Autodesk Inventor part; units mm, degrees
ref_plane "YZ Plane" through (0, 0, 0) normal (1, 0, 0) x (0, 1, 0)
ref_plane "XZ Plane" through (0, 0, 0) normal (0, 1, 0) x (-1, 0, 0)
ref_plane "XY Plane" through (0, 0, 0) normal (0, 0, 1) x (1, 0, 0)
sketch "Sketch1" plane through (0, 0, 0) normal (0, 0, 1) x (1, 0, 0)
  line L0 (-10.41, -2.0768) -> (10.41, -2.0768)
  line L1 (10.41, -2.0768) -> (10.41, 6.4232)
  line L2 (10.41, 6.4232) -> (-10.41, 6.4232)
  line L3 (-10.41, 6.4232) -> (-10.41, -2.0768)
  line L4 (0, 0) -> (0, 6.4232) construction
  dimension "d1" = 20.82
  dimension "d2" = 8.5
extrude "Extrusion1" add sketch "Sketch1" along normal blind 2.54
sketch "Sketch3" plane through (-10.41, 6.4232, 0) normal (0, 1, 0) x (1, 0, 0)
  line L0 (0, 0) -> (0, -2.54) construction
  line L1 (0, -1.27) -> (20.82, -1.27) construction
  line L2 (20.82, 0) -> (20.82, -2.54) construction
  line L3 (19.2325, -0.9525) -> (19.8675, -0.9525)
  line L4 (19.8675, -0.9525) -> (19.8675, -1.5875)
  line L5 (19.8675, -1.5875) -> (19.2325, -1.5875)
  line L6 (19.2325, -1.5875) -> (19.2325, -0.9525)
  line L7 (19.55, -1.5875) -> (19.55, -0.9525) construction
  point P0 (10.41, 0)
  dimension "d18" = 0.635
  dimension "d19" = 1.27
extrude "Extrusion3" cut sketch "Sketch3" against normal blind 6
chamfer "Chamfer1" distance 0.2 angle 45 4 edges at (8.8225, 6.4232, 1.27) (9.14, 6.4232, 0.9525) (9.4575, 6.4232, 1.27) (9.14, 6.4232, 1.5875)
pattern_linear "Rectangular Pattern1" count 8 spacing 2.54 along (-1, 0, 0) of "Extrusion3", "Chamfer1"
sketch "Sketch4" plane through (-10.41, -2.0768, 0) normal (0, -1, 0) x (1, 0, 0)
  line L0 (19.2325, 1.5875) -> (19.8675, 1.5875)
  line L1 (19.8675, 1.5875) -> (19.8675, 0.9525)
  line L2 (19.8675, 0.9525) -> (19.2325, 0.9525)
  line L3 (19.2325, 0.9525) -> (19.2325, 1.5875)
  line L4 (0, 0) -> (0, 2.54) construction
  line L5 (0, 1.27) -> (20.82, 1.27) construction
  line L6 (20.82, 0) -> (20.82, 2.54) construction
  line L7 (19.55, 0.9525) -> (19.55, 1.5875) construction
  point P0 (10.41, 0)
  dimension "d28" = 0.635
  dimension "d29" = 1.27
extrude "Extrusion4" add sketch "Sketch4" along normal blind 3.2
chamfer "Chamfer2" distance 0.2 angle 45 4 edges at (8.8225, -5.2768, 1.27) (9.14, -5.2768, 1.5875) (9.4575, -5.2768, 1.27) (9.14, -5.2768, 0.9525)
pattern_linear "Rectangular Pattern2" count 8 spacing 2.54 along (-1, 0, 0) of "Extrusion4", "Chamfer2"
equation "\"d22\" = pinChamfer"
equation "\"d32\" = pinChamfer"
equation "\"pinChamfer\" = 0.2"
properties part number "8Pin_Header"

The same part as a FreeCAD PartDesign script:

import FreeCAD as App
import Part
import Sketcher
from FreeCAD import Vector
Q = App.Units.Quantity


def edges_at(feature, points):
    """Names of the edges that pass closest to the given points."""
    edges = feature.Shape.Edges
    near = lambda p: min(range(len(edges)), key=lambda i: edges[i].distToShape(Part.Vertex(*p))[0])
    return sorted({f"Edge{near(p) + 1}" for p in points})


def add_polygon(sketch, points):
    """Adds a closed chain of lines whose ends are joined by coincident constraints."""
    first, n = sketch.GeometryCount, len(points)
    for a, b in zip(points, points[1:] + points[:1]):
        sketch.addGeometry(Part.LineSegment(App.Vector(*a, 0), App.Vector(*b, 0)), False)
    for i in range(n):
        sketch.addConstraint(Sketcher.Constraint("Coincident", first + i, 2, first + (i + 1) % n, 1))

doc = App.newDocument("Part")
body = doc.addObject("PartDesign::Body", "Body")

# Sketch on XY plane
sketch1 = doc.addObject("Sketcher::SketchObject", "Sketch")
body.addObject(sketch1)
sketch1.AttachmentSupport = (doc.XY_Plane, [""])
sketch1.MapMode = "FlatFace"
add_polygon(sketch1, [(-10, 6), (-10, -2), (10, -2), (10, 6)])  # lines 0-3
sketch1.addConstraint(Sketcher.Constraint("Vertical", 0))
sketch1.addConstraint(Sketcher.Constraint("Horizontal", 1))
sketch1.addConstraint(Sketcher.Constraint("Vertical", 2))
sketch1.addConstraint(Sketcher.Constraint("Horizontal", 3))
sketch1.addConstraint(Sketcher.Constraint("DistanceY", 0, 2, 0, 1, Q("8.5 mm")))
sketch1.addConstraint(Sketcher.Constraint("DistanceX", 1, 1, 1, 2, Q("20.82 mm")))
sketch1.addConstraint(Sketcher.Constraint("DistanceX", 0, 2, -1, 1, Q("10.41 mm")))
sketch1.addConstraint(Sketcher.Constraint("DistanceY", 0, 2, -1, 1, Q("2.0768 mm")))
pad1 = doc.addObject("PartDesign::Pad", "Pad")
body.addObject(pad1)
pad1.Profile = sketch1
pad1.Length = 2.54

# Sketch on XZ plane
sketch2 = doc.addObject("Sketcher::SketchObject", "Sketch001")
body.addObject(sketch2)
sketch2.AttachmentSupport = (doc.XZ_Plane, [""])
sketch2.MapMode = "FlatFace"
sketch2.AttachmentOffset = App.Placement(Vector(0, 0, -6.4232), App.Rotation())
add_polygon(sketch2, [(9.5, 1), (8.8, 1), (8.8, 1.6), (9.5, 1.6)])  # lines 0-3
sketch2.addConstraint(Sketcher.Constraint("Horizontal", 0))
sketch2.addConstraint(Sketcher.Constraint("Vertical", 1))
sketch2.addConstraint(Sketcher.Constraint("Horizontal", 2))
sketch2.addConstraint(Sketcher.Constraint("Vertical", 3))
sketch2.addConstraint(Sketcher.Constraint("Equal", 2, 1))
sketch2.addConstraint(Sketcher.Constraint("DistanceX", 0, 2, 0, 1, Q("0.635 mm")))
sketch2.addConstraint(Sketcher.Constraint("DistanceX", -1, 1, 0, 2, Q("8.8225 mm")))
sketch2.addConstraint(Sketcher.Constraint("DistanceY", -1, 1, 0, 2, Q("0.9525 mm")))
pocket1 = doc.addObject("PartDesign::Pocket", "Pocket")
body.addObject(pocket1)
pocket1.Profile = sketch2
pocket1.Length = 6
pocket1.Reversed = True
doc.recompute()

chamfer = doc.addObject("PartDesign::Chamfer", "Chamfer")
body.addObject(chamfer)
chamfer.Base = (pocket1, edges_at(pocket1, [
    (8.822, 6.423, 1.27),
    (9.14, 6.423, 0.953),
    (9.457, 6.423, 1.27),
    (9.14, 6.423, 1.587),
]))
chamfer.Size = 0.2
doc.recompute()

linearpattern = doc.addObject("PartDesign::LinearPattern", "LinearPattern")
body.addObject(linearpattern)
linearpattern.Originals = [pocket1, chamfer]
linearpattern.Direction = (doc.X_Axis, [""])
linearpattern.Mode = "offset"
linearpattern.Offset = 2.54
linearpattern.Occurrences = 8
linearpattern.Reversed = True
body.Tip = linearpattern

# Sketch on XZ plane
sketch3 = doc.addObject("Sketcher::SketchObject", "Sketch002")
body.addObject(sketch3)
sketch3.AttachmentSupport = (doc.XZ_Plane, [""])
sketch3.MapMode = "FlatFace"
sketch3.AttachmentOffset = App.Placement(Vector(0, 0, 2.0768), App.Rotation())
add_polygon(sketch3, [(9.5, 1.6), (8.8, 1.6), (8.8, 1), (9.5, 1)])  # lines 0-3
sketch3.addConstraint(Sketcher.Constraint("Horizontal", 0))
sketch3.addConstraint(Sketcher.Constraint("Vertical", 1))
sketch3.addConstraint(Sketcher.Constraint("Horizontal", 2))
sketch3.addConstraint(Sketcher.Constraint("Vertical", 3))
sketch3.addConstraint(Sketcher.Constraint("Equal", 2, 1))
sketch3.addConstraint(Sketcher.Constraint("DistanceX", 0, 2, 0, 1, Q("0.635 mm")))
sketch3.addConstraint(Sketcher.Constraint("DistanceX", -1, 1, 0, 2, Q("8.8225 mm")))
sketch3.addConstraint(Sketcher.Constraint("DistanceY", -1, 1, 0, 2, Q("1.5875 mm")))
pad2 = doc.addObject("PartDesign::Pad", "Pad001")
body.addObject(pad2)
pad2.Profile = sketch3
pad2.Length = 3.2
doc.recompute()

chamfer2 = doc.addObject("PartDesign::Chamfer", "Chamfer001")
body.addObject(chamfer2)
chamfer2.Base = (pad2, edges_at(pad2, [
    (8.822, -5.277, 1.27),
    (9.14, -5.277, 1.587),
    (9.457, -5.277, 1.27),
    (9.14, -5.277, 0.953),
]))
chamfer2.Size = 0.2
doc.recompute()

linearpattern2 = doc.addObject("PartDesign::LinearPattern", "LinearPattern001")
body.addObject(linearpattern2)
linearpattern2.Originals = [pad2, chamfer2]
linearpattern2.Direction = (doc.X_Axis, [""])
linearpattern2.Mode = "offset"
linearpattern2.Offset = 2.54
linearpattern2.Occurrences = 8
linearpattern2.Reversed = True
body.Tip = linearpattern2

doc.recompute()
